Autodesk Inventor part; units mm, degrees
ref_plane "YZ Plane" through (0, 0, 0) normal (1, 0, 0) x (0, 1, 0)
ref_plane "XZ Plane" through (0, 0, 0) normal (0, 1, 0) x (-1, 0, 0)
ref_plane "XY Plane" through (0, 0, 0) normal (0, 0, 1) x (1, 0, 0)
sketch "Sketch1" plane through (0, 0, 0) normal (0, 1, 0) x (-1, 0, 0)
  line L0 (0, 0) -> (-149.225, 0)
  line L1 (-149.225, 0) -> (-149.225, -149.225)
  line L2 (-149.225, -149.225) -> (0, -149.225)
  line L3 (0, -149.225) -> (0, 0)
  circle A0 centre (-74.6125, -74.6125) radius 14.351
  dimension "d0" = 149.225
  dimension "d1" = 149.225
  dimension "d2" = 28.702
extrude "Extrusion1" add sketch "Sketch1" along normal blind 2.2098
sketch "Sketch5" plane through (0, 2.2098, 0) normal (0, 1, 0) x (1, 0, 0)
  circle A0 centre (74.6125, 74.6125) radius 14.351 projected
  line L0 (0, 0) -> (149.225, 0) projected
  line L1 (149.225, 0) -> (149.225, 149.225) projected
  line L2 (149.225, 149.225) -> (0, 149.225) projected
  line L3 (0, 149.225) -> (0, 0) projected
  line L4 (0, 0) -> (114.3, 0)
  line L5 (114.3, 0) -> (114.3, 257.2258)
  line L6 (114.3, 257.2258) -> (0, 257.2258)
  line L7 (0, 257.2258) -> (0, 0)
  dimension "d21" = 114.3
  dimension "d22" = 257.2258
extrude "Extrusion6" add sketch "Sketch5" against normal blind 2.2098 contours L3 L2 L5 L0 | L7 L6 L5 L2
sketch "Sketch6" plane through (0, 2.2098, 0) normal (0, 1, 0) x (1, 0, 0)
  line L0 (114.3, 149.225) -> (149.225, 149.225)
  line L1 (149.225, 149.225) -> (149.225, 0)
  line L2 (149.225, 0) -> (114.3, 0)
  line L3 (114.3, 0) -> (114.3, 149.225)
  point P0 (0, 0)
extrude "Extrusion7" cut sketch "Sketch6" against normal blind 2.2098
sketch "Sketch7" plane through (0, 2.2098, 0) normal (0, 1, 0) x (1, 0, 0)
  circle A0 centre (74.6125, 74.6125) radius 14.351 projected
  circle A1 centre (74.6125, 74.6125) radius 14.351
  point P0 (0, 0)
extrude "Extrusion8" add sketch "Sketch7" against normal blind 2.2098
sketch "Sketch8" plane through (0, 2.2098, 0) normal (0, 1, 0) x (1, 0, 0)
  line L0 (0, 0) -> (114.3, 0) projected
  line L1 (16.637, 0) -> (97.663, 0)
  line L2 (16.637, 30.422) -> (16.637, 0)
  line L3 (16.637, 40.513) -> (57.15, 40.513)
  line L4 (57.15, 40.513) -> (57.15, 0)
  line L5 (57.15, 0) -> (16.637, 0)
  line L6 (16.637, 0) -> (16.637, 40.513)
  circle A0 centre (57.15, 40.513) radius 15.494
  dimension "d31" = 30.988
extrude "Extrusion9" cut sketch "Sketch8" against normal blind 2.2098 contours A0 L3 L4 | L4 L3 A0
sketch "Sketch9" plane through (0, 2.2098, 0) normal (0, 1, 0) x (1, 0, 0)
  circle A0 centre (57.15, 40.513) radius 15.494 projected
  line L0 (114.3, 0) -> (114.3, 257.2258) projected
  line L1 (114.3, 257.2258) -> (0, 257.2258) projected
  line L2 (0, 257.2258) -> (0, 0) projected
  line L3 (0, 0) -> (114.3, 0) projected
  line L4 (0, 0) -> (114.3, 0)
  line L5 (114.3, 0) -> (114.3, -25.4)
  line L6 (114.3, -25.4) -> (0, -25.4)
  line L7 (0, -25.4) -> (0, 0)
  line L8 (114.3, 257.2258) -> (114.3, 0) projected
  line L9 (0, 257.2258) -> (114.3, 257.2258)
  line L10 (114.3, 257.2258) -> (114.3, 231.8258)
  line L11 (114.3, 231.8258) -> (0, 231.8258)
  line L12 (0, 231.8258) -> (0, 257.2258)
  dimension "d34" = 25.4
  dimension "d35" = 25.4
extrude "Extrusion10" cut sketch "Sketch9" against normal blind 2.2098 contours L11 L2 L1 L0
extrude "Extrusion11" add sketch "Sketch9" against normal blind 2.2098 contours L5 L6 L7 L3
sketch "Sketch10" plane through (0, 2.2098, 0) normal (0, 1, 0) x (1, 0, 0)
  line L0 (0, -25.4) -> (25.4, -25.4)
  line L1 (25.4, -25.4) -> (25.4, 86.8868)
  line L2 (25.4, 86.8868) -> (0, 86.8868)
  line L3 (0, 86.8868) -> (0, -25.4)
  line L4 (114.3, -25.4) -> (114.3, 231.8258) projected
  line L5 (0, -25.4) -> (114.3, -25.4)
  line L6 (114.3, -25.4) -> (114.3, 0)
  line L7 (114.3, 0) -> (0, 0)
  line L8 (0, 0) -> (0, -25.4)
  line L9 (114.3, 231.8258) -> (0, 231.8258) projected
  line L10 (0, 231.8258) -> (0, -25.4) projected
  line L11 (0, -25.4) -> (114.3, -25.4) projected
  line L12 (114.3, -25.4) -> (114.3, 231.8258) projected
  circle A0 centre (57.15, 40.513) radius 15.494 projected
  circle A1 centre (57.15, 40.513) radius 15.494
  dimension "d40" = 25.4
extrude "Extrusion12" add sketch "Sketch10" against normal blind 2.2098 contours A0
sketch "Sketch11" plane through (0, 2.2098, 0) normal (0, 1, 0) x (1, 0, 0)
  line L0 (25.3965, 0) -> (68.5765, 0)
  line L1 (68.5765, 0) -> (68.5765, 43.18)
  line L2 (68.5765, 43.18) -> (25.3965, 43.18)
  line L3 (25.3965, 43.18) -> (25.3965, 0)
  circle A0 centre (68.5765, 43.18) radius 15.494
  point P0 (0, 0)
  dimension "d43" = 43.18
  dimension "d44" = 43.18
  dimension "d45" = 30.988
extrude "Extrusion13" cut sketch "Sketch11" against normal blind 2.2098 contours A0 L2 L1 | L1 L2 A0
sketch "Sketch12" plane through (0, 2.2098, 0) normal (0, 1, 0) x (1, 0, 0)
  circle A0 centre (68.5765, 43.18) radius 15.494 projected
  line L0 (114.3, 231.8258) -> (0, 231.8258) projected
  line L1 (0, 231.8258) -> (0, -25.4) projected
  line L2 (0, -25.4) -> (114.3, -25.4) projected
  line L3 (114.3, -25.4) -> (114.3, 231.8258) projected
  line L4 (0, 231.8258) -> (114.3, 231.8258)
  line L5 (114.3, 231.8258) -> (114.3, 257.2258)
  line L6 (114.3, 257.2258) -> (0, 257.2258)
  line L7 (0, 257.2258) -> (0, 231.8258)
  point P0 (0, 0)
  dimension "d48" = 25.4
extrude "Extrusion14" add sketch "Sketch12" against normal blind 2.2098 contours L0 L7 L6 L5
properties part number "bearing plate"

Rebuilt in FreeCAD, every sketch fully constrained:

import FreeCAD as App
import Part
import Sketcher
from FreeCAD import Vector
Q = App.Units.Quantity


def add_polygon(sketch, points):
    """Adds a closed chain of lines whose ends are joined by coincident constraints."""
    first, n = sketch.GeometryCount, len(points)
    for a, b in zip(points, points[1:] + points[:1]):
        sketch.addGeometry(Part.LineSegment(App.Vector(*a, 0), App.Vector(*b, 0)), False)
    for i in range(n):
        sketch.addConstraint(Sketcher.Constraint("Coincident", first + i, 2, first + (i + 1) % n, 1))

doc = App.newDocument("Part")
body = doc.addObject("PartDesign::Body", "Body")

sketch1 = doc.addObject("Sketcher::SketchObject", "Sketch")
body.addObject(sketch1)
sketch1.AttachmentSupport = (doc.XZ_Plane, [""])
sketch1.MapMode = "FlatFace"
add_polygon(sketch1, [(0, -149), (0, 0), (149, 0), (149, -149)])
sketch1.addGeometry(Part.Circle(Vector(75, -75, 0), Vector(0, 0, 1), 14), False)
sketch1.addConstraint(Sketcher.Constraint("Vertical", 0))
sketch1.addConstraint(Sketcher.Constraint("Horizontal", 1))
sketch1.addConstraint(Sketcher.Constraint("Vertical", 2))
sketch1.addConstraint(Sketcher.Constraint("Horizontal", 3))
sketch1.addConstraint(Sketcher.Constraint("Coincident", 0, 2, -1, 1))
sketch1.addConstraint(Sketcher.Constraint("Equal", 3, 0))
sketch1.addConstraint(Sketcher.Constraint("Diameter", 4, Q("1.13 in")))
sketch1.addConstraint(Sketcher.Constraint("DistanceX", 1, 1, 1, 2, Q("5.875 in")))
sketch1.addConstraint(Sketcher.Constraint("DistanceX", -1, 1, 4, 3, Q("2.9375 in")))
sketch1.addConstraint(Sketcher.Constraint("DistanceY", 4, 3, -1, 1, Q("2.9375 in")))
pad1 = doc.addObject("PartDesign::Pad", "Pad")
body.addObject(pad1)
pad1.Profile = sketch1
pad1.Length = Q("0.087 in")
pad1.Reversed = True

sketch2 = doc.addObject("Sketcher::SketchObject", "Sketch001")
body.addObject(sketch2)
sketch2.AttachmentSupport = (doc.XZ_Plane, [""])
sketch2.MapMode = "FlatFace"
sketch2.AttachmentOffset = App.Placement(Vector(0, 0, -0.087 * 25.4), App.Rotation())
add_polygon(sketch2, [(0, 0), (114, 0), (114, -257), (0, -257)])
sketch2.addGeometry(Part.Circle(Vector(75, -75, 0), Vector(0, 0, 1), 14), False)
sketch2.addConstraint(Sketcher.Constraint("Horizontal", 0))
sketch2.addConstraint(Sketcher.Constraint("Vertical", 1))
sketch2.addConstraint(Sketcher.Constraint("Horizontal", 2))
sketch2.addConstraint(Sketcher.Constraint("Vertical", 3))
sketch2.addConstraint(Sketcher.Constraint("Coincident", 3, 2, -1, 1))
sketch2.addConstraint(Sketcher.Constraint("DistanceX", 0, 1, 0, 2, Q("4.5 in")))
sketch2.addConstraint(Sketcher.Constraint("Diameter", 4, Q("1.13 in")))
sketch2.addConstraint(Sketcher.Constraint("DistanceY", 1, 2, 1, 1, Q("10.127 in")))
sketch2.addConstraint(Sketcher.Constraint("DistanceX", -1, 1, 4, 3, Q("2.9375 in")))
sketch2.addConstraint(Sketcher.Constraint("DistanceY", 4, 3, -1, 1, Q("2.9375 in")))
pad2 = doc.addObject("PartDesign::Pad", "Pad001")
body.addObject(pad2)
pad2.Profile = sketch2
pad2.Length = Q("0.087 in")

sketch3 = doc.addObject("Sketcher::SketchObject", "Sketch002")
body.addObject(sketch3)
sketch3.AttachmentSupport = (doc.XZ_Plane, [""])
sketch3.MapMode = "FlatFace"
sketch3.AttachmentOffset = App.Placement(Vector(0, 0, -0.087 * 25.4), App.Rotation())
add_polygon(sketch3, [(149, -149), (114, -149), (114, 0), (149, 0)])
sketch3.addConstraint(Sketcher.Constraint("Horizontal", 0))
sketch3.addConstraint(Sketcher.Constraint("Vertical", 1))
sketch3.addConstraint(Sketcher.Constraint("Horizontal", 2))
sketch3.addConstraint(Sketcher.Constraint("Vertical", 3))
sketch3.addConstraint(Sketcher.Constraint("PointOnObject", 1, 2, -1))
sketch3.addConstraint(Sketcher.Constraint("DistanceX", -1, 1, 0, 2, Q("4.5 in")))
sketch3.addConstraint(Sketcher.Constraint("DistanceX", 0, 2, 0, 1, Q("1.375 in")))
sketch3.addConstraint(Sketcher.Constraint("DistanceY", 1, 1, 1, 2, Q("5.875 in")))
pocket1 = doc.addObject("PartDesign::Pocket", "Pocket")
body.addObject(pocket1)
pocket1.Profile = sketch3
pocket1.Length = Q("0.087 in")
pocket1.Reversed = True

sketch4 = doc.addObject("Sketcher::SketchObject", "Sketch003")
body.addObject(sketch4)
sketch4.AttachmentSupport = (doc.XZ_Plane, [""])
sketch4.MapMode = "FlatFace"
sketch4.AttachmentOffset = App.Placement(Vector(0, 0, -0.087 * 25.4), App.Rotation())
sketch4.addGeometry(Part.Circle(Vector(75, -75, 0), Vector(0, 0, 1), 14), False)
sketch4.addConstraint(Sketcher.Constraint("Diameter", 0, Q("1.13 in")))
sketch4.addConstraint(Sketcher.Constraint("DistanceX", -1, 1, 0, 3, Q("2.9375 in")))
sketch4.addConstraint(Sketcher.Constraint("DistanceY", 0, 3, -1, 1, Q("2.9375 in")))
pad3 = doc.addObject("PartDesign::Pad", "Pad002")
body.addObject(pad3)
pad3.Profile = sketch4
pad3.Length = Q("0.087 in")

sketch5 = doc.addObject("Sketcher::SketchObject", "Sketch004")
body.addObject(sketch5)
sketch5.AttachmentSupport = (doc.XZ_Plane, [""])
sketch5.MapMode = "FlatFace"
sketch5.AttachmentOffset = App.Placement(Vector(0, 0, -0.087 * 25.4), App.Rotation())
sketch5.addGeometry(Part.Circle(Vector(57, -41, 0), Vector(0, 0, 1), 15), False)
sketch5.addConstraint(Sketcher.Constraint("Diameter", 0, Q("1.22 in")))
sketch5.addConstraint(Sketcher.Constraint("DistanceX", -1, 1, 0, 3, Q("2.25 in")))
sketch5.addConstraint(Sketcher.Constraint("DistanceY", 0, 3, -1, 1, Q("1.595 in")))
pocket2 = doc.addObject("PartDesign::Pocket", "Pocket001")
body.addObject(pocket2)
pocket2.Profile = sketch5
pocket2.Length = Q("0.087 in")
pocket2.Reversed = True

sketch6 = doc.addObject("Sketcher::SketchObject", "Sketch005")
body.addObject(sketch6)
sketch6.AttachmentSupport = (doc.XZ_Plane, [""])
sketch6.MapMode = "FlatFace"
sketch6.AttachmentOffset = App.Placement(Vector(0, 0, -0.087 * 25.4), App.Rotation())
add_polygon(sketch6, [(0, -232), (114, -232), (114, -257), (0, -257)])
sketch6.addConstraint(Sketcher.Constraint("Horizontal", 0))
sketch6.addConstraint(Sketcher.Constraint("Vertical", 1))
sketch6.addConstraint(Sketcher.Constraint("Horizontal", 2))
sketch6.addConstraint(Sketcher.Constraint("Vertical", 3))
sketch6.addConstraint(Sketcher.Constraint("PointOnObject", 2, 2, -2))
sketch6.addConstraint(Sketcher.Constraint("DistanceY", 1, 2, 1, 1, Q("1 in")))
sketch6.addConstraint(Sketcher.Constraint("DistanceX", 0, 1, 0, 2, Q("4.5 in")))
sketch6.addConstraint(Sketcher.Constraint("DistanceY", 0, 2, -1, 1, Q("9.127 in")))
pocket3 = doc.addObject("PartDesign::Pocket", "Pocket002")
body.addObject(pocket3)
pocket3.Profile = sketch6
pocket3.Length = Q("0.087 in")
pocket3.Reversed = True

sketch7 = doc.addObject("Sketcher::SketchObject", "Sketch006")
body.addObject(sketch7)
sketch7.AttachmentSupport = (doc.XZ_Plane, [""])
sketch7.MapMode = "FlatFace"
sketch7.AttachmentOffset = App.Placement(Vector(0, 0, -0.087 * 25.4), App.Rotation())
add_polygon(sketch7, [(114, 25), (114, 0), (0, 0), (0, 25)])
sketch7.addConstraint(Sketcher.Constraint("Vertical", 0))
sketch7.addConstraint(Sketcher.Constraint("Horizontal", 1))
sketch7.addConstraint(Sketcher.Constraint("Vertical", 2))
sketch7.addConstraint(Sketcher.Constraint("Horizontal", 3))
sketch7.addConstraint(Sketcher.Constraint("Coincident", 1, 2, -1, 1))
sketch7.addConstraint(Sketcher.Constraint("DistanceY", 0, 2, 0, 1, Q("1 in")))
sketch7.addConstraint(Sketcher.Constraint("DistanceX", 1, 2, 1, 1, Q("4.5 in")))
pad4 = doc.addObject("PartDesign::Pad", "Pad003")
body.addObject(pad4)
pad4.Profile = sketch7
pad4.Length = Q("0.087 in")

sketch8 = doc.addObject("Sketcher::SketchObject", "Sketch007")
body.addObject(sketch8)
sketch8.AttachmentSupport = (doc.XZ_Plane, [""])
sketch8.MapMode = "FlatFace"
sketch8.AttachmentOffset = App.Placement(Vector(0, 0, -0.087 * 25.4), App.Rotation())
sketch8.addGeometry(Part.Circle(Vector(57, -41, 0), Vector(0, 0, 1), 15), False)
sketch8.addConstraint(Sketcher.Constraint("Diameter", 0, Q("1.22 in")))
sketch8.addConstraint(Sketcher.Constraint("DistanceX", -1, 1, 0, 3, Q("2.25 in")))
sketch8.addConstraint(Sketcher.Constraint("DistanceY", 0, 3, -1, 1, Q("1.595 in")))
pad5 = doc.addObject("PartDesign::Pad", "Pad004")
body.addObject(pad5)
pad5.Profile = sketch8
pad5.Length = Q("0.087 in")

sketch9 = doc.addObject("Sketcher::SketchObject", "Sketch008")
body.addObject(sketch9)
sketch9.AttachmentSupport = (doc.XZ_Plane, [""])
sketch9.MapMode = "FlatFace"
sketch9.AttachmentOffset = App.Placement(Vector(0, 0, -0.087 * 25.4), App.Rotation())
sketch9.addGeometry(Part.Circle(Vector(69, -43, 0), Vector(0, 0, 1), 15), False)
sketch9.addConstraint(Sketcher.Constraint("Diameter", 0, Q("1.22 in")))
sketch9.addConstraint(Sketcher.Constraint("DistanceY", 0, 3, -1, 1, Q("1.7 in")))
sketch9.addConstraint(Sketcher.Constraint("DistanceX", -1, 1, 0, 3, 68.5765))
pocket4 = doc.addObject("PartDesign::Pocket", "Pocket003")
body.addObject(pocket4)
pocket4.Profile = sketch9
pocket4.Length = Q("0.087 in")
pocket4.Reversed = True

sketch10 = doc.addObject("Sketcher::SketchObject", "Sketch009")
body.addObject(sketch10)
sketch10.AttachmentSupport = (doc.XZ_Plane, [""])
sketch10.MapMode = "FlatFace"
sketch10.AttachmentOffset = App.Placement(Vector(0, 0, -0.087 * 25.4), App.Rotation())
add_polygon(sketch10, [(0, -232), (114, -232), (114, -257), (0, -257)])
sketch10.addConstraint(Sketcher.Constraint("Horizontal", 0))
sketch10.addConstraint(Sketcher.Constraint("Vertical", 1))
sketch10.addConstraint(Sketcher.Constraint("Horizontal", 2))
sketch10.addConstraint(Sketcher.Constraint("Vertical", 3))
sketch10.addConstraint(Sketcher.Constraint("PointOnObject", 2, 2, -2))
sketch10.addConstraint(Sketcher.Constraint("DistanceY", 1, 2, 1, 1, Q("1 in")))
sketch10.addConstraint(Sketcher.Constraint("DistanceX", 0, 1, 0, 2, Q("4.5 in")))
sketch10.addConstraint(Sketcher.Constraint("DistanceY", 0, 2, -1, 1, Q("9.127 in")))
pad6 = doc.addObject("PartDesign::Pad", "Pad005")
body.addObject(pad6)
pad6.Profile = sketch10
pad6.Length = Q("0.087 in")

doc.recompute()
